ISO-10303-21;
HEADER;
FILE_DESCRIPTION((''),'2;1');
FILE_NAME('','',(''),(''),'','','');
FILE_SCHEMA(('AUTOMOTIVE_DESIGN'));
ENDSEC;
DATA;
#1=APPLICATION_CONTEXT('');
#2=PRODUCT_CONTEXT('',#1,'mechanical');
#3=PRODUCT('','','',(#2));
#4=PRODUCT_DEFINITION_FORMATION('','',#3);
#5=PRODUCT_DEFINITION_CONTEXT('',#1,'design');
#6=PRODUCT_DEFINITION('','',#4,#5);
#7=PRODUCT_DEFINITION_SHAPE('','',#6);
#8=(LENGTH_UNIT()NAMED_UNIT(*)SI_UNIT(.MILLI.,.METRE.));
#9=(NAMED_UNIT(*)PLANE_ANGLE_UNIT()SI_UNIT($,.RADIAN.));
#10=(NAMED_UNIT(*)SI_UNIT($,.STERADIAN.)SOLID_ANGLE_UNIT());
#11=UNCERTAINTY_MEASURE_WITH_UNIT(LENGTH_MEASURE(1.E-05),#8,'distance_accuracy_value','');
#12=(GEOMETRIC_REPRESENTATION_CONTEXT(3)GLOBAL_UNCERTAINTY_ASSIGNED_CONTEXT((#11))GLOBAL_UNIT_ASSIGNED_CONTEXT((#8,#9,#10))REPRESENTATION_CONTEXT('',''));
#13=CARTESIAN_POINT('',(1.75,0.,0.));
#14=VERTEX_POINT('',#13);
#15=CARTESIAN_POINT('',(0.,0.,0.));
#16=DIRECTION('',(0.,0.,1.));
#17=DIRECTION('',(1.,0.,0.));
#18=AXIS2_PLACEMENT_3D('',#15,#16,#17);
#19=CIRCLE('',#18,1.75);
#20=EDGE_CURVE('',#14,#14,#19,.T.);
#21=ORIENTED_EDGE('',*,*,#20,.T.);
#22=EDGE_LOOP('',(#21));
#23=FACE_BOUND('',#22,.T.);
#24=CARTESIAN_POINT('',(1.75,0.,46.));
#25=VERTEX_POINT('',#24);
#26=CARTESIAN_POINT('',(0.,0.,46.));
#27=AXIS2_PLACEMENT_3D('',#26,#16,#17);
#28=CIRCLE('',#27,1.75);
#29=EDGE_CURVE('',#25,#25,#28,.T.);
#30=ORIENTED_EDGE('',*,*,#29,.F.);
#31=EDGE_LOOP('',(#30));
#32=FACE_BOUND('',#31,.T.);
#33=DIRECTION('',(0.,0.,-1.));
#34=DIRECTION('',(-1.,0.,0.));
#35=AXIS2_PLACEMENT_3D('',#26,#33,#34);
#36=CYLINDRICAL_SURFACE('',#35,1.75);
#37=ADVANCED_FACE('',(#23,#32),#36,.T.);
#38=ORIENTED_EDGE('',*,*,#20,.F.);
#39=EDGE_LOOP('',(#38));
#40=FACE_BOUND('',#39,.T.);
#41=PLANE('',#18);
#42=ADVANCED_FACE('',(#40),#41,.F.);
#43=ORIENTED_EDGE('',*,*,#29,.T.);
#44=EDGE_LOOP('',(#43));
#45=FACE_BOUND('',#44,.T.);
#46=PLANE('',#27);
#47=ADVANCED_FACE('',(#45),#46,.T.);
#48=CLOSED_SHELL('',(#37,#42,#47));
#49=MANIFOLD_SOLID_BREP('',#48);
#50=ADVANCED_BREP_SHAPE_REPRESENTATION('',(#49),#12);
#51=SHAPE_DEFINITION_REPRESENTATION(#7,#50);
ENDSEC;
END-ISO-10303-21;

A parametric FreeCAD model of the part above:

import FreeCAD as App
import Part
import Sketcher
from FreeCAD import Vector

doc = App.newDocument("Part")
body = doc.addObject("PartDesign::Body", "Body")

# Sketch on XY plane
sketch1 = doc.addObject("Sketcher::SketchObject", "Sketch")
body.addObject(sketch1)
sketch1.AttachmentSupport = (doc.XY_Plane, [""])
sketch1.MapMode = "FlatFace"
sketch1.addGeometry(Part.Circle(Vector(0, 0, 0), Vector(0, 0, 1), 1.8), False)
sketch1.addConstraint([
    Sketcher.Constraint("Coincident", 0, 3, -1, 1),
    Sketcher.Constraint("Diameter", 0, 3.5),
])
pad1 = doc.addObject("PartDesign::Pad", "Pad")
body.addObject(pad1)
pad1.Profile = sketch1
pad1.Length = 46

doc.recompute()
